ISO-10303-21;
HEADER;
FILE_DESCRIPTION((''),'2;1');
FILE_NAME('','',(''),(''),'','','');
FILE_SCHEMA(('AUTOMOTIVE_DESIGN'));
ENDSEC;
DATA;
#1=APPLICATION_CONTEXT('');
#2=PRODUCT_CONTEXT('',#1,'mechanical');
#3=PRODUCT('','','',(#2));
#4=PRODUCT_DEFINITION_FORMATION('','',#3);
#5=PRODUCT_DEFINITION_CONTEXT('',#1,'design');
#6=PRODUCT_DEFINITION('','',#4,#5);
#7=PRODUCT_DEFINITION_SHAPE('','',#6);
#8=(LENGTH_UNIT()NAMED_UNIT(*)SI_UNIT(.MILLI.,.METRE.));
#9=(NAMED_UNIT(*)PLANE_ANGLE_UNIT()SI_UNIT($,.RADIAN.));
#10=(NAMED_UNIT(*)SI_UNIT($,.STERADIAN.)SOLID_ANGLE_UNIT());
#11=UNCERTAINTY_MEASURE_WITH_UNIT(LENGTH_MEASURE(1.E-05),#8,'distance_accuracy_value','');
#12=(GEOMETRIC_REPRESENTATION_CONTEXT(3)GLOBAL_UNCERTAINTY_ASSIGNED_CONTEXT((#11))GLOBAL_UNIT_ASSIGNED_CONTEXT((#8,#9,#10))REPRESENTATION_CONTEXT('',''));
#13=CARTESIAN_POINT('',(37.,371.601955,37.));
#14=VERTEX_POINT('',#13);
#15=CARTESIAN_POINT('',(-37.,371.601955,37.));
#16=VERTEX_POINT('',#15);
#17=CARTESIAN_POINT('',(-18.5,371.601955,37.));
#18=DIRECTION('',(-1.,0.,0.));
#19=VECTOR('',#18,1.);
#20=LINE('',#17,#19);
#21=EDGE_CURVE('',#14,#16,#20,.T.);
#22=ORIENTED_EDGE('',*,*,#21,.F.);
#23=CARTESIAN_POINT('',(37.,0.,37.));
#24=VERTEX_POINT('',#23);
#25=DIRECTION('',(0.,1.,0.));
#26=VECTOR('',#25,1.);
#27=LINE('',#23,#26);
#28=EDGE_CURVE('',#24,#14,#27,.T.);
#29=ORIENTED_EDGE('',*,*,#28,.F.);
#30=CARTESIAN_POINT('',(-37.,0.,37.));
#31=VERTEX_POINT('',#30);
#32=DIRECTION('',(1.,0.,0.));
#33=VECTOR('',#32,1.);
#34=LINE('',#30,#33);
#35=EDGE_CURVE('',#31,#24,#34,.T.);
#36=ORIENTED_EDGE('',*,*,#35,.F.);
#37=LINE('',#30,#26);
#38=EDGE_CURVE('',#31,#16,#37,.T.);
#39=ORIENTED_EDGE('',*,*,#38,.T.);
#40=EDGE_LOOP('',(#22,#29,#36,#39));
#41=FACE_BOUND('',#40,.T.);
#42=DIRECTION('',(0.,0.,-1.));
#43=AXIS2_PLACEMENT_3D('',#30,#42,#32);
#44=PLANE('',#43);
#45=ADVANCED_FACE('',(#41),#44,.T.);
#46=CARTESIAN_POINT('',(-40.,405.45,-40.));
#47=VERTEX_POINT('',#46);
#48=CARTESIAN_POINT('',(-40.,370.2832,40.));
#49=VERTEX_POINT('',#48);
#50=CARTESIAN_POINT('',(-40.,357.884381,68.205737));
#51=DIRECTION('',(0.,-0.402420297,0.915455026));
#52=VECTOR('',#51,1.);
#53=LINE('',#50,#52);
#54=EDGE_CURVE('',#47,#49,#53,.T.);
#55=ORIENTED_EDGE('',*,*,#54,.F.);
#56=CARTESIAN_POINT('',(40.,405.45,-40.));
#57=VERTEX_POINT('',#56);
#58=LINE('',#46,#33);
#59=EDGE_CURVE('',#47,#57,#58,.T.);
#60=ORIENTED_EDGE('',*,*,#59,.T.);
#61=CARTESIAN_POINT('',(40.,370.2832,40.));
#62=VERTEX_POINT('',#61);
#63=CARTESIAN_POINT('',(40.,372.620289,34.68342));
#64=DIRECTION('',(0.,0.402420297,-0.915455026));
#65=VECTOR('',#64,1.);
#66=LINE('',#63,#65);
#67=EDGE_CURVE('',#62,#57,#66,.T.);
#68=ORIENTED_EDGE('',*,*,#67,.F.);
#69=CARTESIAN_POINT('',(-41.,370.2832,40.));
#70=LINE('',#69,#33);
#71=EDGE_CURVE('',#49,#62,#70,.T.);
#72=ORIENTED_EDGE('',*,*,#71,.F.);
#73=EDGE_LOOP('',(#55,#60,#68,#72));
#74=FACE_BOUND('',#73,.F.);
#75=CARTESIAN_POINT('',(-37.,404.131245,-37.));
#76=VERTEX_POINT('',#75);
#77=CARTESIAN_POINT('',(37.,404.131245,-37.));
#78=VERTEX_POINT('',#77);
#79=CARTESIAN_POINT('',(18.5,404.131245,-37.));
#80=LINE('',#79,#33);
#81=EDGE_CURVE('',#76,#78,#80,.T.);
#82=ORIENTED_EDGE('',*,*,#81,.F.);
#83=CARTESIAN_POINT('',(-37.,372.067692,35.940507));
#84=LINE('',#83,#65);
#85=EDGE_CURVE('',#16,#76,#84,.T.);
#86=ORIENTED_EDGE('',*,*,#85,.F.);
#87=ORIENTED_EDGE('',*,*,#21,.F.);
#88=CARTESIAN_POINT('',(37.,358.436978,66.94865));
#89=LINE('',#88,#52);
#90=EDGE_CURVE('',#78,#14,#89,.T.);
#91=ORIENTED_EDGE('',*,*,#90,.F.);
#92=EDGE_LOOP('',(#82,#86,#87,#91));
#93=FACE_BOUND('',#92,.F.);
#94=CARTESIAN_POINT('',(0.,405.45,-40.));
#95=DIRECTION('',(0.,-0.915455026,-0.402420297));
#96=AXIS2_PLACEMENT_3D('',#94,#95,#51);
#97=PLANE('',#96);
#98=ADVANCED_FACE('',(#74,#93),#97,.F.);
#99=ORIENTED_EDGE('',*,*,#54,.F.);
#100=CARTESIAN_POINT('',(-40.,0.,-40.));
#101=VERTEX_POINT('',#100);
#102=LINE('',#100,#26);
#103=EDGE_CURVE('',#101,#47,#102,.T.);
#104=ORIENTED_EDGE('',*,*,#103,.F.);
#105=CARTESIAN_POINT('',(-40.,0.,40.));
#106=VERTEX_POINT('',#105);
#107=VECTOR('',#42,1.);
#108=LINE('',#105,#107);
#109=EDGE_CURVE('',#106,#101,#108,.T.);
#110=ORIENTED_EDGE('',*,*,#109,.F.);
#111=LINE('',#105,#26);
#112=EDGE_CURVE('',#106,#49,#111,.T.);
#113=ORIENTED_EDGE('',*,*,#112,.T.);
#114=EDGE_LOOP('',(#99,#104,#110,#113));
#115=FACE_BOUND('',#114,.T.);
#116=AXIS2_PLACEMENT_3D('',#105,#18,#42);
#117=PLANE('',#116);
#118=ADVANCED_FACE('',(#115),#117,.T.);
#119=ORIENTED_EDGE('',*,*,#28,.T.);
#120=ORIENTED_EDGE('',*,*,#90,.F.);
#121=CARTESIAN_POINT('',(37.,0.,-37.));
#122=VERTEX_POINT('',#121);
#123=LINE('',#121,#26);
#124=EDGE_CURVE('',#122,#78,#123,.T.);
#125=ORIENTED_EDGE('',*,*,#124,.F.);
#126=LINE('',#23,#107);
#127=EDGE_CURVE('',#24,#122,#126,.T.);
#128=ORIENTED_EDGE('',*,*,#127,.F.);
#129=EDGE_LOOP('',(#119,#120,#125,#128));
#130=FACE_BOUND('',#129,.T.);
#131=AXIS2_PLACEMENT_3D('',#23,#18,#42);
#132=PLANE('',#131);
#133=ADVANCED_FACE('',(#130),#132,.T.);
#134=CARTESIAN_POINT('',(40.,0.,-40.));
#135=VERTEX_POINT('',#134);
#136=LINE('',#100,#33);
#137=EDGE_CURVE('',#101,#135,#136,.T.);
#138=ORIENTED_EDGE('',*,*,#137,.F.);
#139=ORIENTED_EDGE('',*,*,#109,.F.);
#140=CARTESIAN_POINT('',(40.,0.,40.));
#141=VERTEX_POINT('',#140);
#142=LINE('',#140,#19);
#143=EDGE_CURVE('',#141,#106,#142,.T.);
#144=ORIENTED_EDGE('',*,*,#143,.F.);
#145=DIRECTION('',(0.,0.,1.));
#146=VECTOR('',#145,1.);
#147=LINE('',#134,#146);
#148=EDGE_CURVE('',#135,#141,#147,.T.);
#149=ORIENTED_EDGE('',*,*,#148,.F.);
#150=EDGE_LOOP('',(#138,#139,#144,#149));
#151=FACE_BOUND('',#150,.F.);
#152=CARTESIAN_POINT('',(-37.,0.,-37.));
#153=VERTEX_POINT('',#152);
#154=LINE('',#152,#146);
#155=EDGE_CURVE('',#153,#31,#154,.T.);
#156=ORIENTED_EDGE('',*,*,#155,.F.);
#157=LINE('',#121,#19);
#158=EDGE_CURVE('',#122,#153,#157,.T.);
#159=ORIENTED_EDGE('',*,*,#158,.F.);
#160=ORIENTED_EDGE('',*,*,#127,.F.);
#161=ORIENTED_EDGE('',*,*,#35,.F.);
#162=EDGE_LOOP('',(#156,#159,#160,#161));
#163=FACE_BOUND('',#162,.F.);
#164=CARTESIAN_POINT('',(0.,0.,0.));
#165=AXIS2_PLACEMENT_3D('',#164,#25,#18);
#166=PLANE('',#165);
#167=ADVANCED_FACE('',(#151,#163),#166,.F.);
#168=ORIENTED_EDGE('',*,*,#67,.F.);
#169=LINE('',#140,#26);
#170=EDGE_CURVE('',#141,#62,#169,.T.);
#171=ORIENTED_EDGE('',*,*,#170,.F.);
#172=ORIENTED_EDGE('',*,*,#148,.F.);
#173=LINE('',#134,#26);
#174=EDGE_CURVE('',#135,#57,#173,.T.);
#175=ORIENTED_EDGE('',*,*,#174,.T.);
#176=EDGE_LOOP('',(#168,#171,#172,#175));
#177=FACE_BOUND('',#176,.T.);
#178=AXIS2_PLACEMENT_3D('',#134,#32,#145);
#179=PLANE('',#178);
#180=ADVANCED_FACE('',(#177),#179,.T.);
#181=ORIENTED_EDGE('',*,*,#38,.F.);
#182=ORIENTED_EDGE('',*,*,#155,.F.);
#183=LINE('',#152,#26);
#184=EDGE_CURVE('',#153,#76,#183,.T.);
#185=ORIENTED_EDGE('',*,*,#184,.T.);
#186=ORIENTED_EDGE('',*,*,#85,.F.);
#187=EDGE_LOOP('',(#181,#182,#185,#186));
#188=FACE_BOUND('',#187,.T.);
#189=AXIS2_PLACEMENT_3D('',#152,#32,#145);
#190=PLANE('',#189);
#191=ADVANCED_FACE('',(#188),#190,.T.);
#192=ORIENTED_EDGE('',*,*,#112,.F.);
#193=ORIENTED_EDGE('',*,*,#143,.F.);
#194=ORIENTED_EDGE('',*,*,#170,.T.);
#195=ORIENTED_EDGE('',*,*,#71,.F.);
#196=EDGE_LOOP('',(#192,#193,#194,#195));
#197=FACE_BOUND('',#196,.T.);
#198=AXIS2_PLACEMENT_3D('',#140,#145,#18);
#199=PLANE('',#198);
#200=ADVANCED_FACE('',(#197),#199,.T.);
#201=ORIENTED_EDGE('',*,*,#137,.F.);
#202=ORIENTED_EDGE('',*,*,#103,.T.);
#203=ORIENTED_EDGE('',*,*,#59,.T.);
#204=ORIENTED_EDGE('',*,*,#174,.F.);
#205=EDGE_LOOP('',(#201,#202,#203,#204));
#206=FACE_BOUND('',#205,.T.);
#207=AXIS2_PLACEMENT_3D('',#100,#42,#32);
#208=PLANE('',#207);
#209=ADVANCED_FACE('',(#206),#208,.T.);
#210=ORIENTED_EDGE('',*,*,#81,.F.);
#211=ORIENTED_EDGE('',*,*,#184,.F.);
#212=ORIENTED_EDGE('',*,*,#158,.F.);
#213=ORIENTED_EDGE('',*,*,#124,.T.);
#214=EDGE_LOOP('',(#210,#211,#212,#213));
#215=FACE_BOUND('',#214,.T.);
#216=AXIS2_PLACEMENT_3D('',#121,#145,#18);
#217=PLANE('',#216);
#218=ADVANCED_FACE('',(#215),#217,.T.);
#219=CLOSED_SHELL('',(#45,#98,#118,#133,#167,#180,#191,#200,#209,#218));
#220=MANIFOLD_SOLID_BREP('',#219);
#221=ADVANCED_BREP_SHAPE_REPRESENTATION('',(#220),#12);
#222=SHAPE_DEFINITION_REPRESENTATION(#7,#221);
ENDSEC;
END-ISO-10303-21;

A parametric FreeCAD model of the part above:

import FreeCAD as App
import Part
import Sketcher
from FreeCAD import Vector
Q = App.Units.Quantity


def add_polygon(sketch, points):
    """Adds a closed chain of lines whose ends are joined by coincident constraints."""
    first, n = sketch.GeometryCount, len(points)
    for a, b in zip(points, points[1:] + points[:1]):
        sketch.addGeometry(Part.LineSegment(App.Vector(*a, 0), App.Vector(*b, 0)), False)
    for i in range(n):
        sketch.addConstraint(Sketcher.Constraint("Coincident", first + i, 2, first + (i + 1) % n, 1))

doc = App.newDocument("Part")
params = doc.addObject("Spreadsheet::Sheet", "Params")
for row, (alias, value) in enumerate([
    ("sketch1_width", "80 mm"),
    ("pad1_length", "405.45 mm"),
    ("sketch2_height", "80 mm"),
], start=1):
    params.set(f"A{row}", alias)
    params.set(f"B{row}", "=" + value)
    params.setAlias(f"B{row}", alias)

body = doc.addObject("PartDesign::Body", "Body")

# Sketch on XZ plane
sketch1 = body.newObject("Sketcher::SketchObject", "Sketch")
sketch1.AttachmentSupport = (doc.getObject("XZ_Plane"), [""])
sketch1.MapMode = "FlatFace"
add_polygon(sketch1, [(40, -40), (-40, -40), (-40, 40), (40, 40)])  # lines 0-3
add_polygon(sketch1, [(-37, -37), (37, -37), (37, 37), (-37, 37)])  # lines 4-7
sketch1.addConstraint([
    Sketcher.Constraint("Horizontal", 0),
    Sketcher.Constraint("Vertical", 1),
    Sketcher.Constraint("Horizontal", 2),
    Sketcher.Constraint("Vertical", 3),
    Sketcher.Constraint("Horizontal", 4),
    Sketcher.Constraint("Vertical", 5),
    Sketcher.Constraint("Horizontal", 6),
    Sketcher.Constraint("Vertical", 7),
    Sketcher.Constraint("Symmetric", 0, 2, 2, 2, -1, 1),
    Sketcher.Constraint("Symmetric", 4, 2, 6, 2, -1, 1),
    Sketcher.Constraint("Equal", 2, 1),
    Sketcher.Constraint("Equal", 6, 5),
    Sketcher.Constraint("DistanceX", 0, 2, 0, 1, Q("80 mm")),
    Sketcher.Constraint("DistanceX", 4, 2, 3, 2, Q("3 mm")),
])
sketch1.setExpression("Constraints[20]", "Params.sketch1_width")
pad1 = body.newObject("PartDesign::Pad", "Pad")
pad1.Profile = sketch1
pad1.setExpression("Length", "Params.pad1_length")
pad1.Reversed = True

# Sketch on YZ plane
sketch2 = body.newObject("Sketcher::SketchObject", "Sketch001")
sketch2.AttachmentSupport = (doc.getObject("YZ_Plane"), [""])
sketch2.MapMode = "FlatFace"
add_polygon(sketch2, [(405, -40), (405, 40), (370, 40)])  # lines 0-2
sketch2.addConstraint([
    Sketcher.Constraint("Vertical", 0),
    Sketcher.Constraint("Horizontal", 1),
    Sketcher.Constraint("DistanceY", 0, 1, 0, 2, Q("80 mm")),
    Sketcher.Constraint("DistanceY", -1, 1, 0, 2, Q("40 mm")),
    Sketcher.Constraint("Angle", 2, Q("-66.2704 deg")),
    Sketcher.Constraint("DistanceX", -1, 1, 0, 2, Q("405.45 mm")),
])
sketch2.setExpression("Constraints[5]", "Params.sketch2_height")
pocket1 = body.newObject("PartDesign::Pocket", "Pocket")
pocket1.Profile = sketch2
pocket1.Type = "ThroughAll"
pocket1.Midplane = True

doc.recompute()
